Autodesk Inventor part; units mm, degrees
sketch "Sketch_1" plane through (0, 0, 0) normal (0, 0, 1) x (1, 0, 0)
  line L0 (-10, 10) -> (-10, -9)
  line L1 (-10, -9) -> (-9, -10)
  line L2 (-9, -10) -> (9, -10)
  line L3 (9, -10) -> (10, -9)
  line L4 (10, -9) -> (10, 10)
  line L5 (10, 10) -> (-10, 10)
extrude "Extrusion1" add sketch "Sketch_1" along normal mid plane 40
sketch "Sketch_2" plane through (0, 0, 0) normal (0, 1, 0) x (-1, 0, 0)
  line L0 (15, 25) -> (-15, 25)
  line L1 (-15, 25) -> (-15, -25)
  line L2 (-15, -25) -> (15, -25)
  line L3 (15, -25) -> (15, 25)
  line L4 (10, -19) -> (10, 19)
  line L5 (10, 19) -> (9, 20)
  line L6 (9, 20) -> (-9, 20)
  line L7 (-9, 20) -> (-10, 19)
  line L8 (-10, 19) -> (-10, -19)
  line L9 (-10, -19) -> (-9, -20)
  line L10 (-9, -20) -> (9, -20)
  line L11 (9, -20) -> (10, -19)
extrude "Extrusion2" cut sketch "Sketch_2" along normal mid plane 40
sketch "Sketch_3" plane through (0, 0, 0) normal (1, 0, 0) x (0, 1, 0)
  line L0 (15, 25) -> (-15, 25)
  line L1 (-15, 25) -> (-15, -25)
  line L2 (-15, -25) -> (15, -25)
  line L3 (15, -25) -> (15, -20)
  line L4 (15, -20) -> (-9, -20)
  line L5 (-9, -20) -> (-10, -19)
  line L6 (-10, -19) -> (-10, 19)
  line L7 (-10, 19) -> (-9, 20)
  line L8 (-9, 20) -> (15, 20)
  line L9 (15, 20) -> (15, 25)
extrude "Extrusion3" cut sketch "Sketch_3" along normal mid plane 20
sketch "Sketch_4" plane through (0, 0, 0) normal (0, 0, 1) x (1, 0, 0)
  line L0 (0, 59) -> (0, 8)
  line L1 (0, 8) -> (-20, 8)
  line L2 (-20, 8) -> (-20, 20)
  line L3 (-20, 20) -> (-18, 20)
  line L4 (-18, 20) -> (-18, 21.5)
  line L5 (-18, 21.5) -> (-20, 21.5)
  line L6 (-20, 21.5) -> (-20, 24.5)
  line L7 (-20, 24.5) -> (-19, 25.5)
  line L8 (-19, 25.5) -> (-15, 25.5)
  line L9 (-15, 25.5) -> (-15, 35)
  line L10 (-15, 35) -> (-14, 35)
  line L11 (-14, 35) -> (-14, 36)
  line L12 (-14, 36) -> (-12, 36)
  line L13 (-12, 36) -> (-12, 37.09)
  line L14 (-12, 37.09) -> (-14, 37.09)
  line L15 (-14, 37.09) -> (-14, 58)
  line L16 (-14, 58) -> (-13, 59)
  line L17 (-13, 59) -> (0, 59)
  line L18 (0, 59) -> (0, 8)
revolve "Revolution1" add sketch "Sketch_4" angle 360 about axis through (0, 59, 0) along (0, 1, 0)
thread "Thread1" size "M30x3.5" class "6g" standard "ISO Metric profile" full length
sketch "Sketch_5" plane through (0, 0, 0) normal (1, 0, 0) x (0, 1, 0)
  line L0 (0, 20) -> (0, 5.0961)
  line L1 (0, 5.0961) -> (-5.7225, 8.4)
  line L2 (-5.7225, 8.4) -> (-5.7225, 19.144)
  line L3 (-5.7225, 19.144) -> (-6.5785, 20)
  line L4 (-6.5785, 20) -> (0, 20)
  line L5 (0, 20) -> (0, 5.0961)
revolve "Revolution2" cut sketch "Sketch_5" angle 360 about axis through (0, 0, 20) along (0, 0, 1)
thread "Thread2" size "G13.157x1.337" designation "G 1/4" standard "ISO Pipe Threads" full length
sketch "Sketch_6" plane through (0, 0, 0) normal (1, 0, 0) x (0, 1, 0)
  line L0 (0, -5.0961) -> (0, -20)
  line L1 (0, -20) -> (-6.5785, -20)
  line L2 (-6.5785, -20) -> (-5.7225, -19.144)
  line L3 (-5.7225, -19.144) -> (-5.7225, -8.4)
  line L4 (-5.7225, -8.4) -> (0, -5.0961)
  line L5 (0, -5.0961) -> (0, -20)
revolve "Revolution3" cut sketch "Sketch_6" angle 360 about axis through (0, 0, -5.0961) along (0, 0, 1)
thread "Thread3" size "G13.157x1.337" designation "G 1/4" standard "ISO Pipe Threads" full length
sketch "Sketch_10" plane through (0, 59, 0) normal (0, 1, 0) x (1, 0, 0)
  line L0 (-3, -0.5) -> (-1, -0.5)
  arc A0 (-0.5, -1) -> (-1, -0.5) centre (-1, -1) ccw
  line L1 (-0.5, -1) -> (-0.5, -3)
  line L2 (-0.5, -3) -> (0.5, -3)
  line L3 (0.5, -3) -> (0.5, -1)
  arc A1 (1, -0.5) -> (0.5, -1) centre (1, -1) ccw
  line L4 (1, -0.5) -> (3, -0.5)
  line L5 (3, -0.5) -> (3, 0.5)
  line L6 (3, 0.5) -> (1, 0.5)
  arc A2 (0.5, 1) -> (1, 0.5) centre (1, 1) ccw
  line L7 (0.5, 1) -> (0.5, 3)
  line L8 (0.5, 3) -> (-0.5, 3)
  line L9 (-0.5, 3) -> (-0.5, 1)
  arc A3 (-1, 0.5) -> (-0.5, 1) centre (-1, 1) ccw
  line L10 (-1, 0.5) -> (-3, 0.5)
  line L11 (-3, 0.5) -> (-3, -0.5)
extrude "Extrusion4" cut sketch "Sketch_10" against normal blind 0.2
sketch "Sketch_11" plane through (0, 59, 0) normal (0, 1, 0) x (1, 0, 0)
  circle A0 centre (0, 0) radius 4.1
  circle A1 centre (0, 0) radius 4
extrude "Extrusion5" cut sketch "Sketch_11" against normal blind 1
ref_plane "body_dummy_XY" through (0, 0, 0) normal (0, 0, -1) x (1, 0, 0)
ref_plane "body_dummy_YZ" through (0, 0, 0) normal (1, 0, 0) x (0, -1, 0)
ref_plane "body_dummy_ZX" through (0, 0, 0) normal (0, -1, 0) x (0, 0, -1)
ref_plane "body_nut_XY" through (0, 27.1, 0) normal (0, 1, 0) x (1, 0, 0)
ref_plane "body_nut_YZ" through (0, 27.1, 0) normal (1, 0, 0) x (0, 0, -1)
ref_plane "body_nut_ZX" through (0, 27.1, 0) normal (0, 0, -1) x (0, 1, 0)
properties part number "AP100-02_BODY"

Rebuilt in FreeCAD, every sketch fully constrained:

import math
import FreeCAD as App
import Part
import Sketcher
from FreeCAD import Vector
Q = App.Units.Quantity


def add_polygon(sketch, points):
    """Adds a closed chain of lines whose ends are joined by coincident constraints."""
    first, n = sketch.GeometryCount, len(points)
    for a, b in zip(points, points[1:] + points[:1]):
        sketch.addGeometry(Part.LineSegment(App.Vector(*a, 0), App.Vector(*b, 0)), False)
    for i in range(n):
        sketch.addConstraint(Sketcher.Constraint("Coincident", first + i, 2, first + (i + 1) % n, 1))

doc = App.newDocument("Part")
body = doc.addObject("PartDesign::Body", "Body")

# Sketch on XY plane
sketch1 = body.newObject("Sketcher::SketchObject", "Sketch")
sketch1.AttachmentSupport = (doc.getObject("XY_Plane"), [""])
sketch1.MapMode = "FlatFace"
add_polygon(sketch1, [(10, 10), (-10, 10), (-10, -9), (-9, -10), (9, -10), (10, -9)])  # lines 0-5
sketch1.addConstraint([
    Sketcher.Constraint("Horizontal", 0),
    Sketcher.Constraint("Vertical", 1),
    Sketcher.Constraint("Horizontal", 3),
    Sketcher.Constraint("Vertical", 5),
    Sketcher.Constraint("Symmetric", 1, 2, 4, 2, -2),
    Sketcher.Constraint("Perpendicular", 2, 4),
    Sketcher.Constraint("Equal", 2, 4),
    Sketcher.Constraint("DistanceX", 0, 2, 0, 1, Q("20 mm")),
    Sketcher.Constraint("DistanceX", 3, 1, 3, 2, Q("18 mm")),
    Sketcher.Constraint("DistanceY", 1, 2, 1, 1, Q("19 mm")),
    Sketcher.Constraint("DistanceY", -1, 1, 0, 2, Q("10 mm")),
])
pad1 = body.newObject("PartDesign::Pad", "Pad")
pad1.Profile = sketch1
pad1.Length = 40
pad1.Midplane = True

# Sketch on XZ plane
sketch2 = body.newObject("Sketcher::SketchObject", "Sketch001")
sketch2.AttachmentSupport = (doc.getObject("XZ_Plane"), [""])
sketch2.MapMode = "FlatFace"
add_polygon(sketch2, [(-15, -25), (-15, 25), (15, 25), (15, -25)])  # lines 0-3
add_polygon(sketch2, [(-10, 19), (-10, -19), (-9, -20), (9, -20), (10, -19), (10, 19), (9, 20), (-9, 20)])  # lines 4-11
sketch2.addConstraint([
    Sketcher.Constraint("Vertical", 0),
    Sketcher.Constraint("Horizontal", 1),
    Sketcher.Constraint("Vertical", 2),
    Sketcher.Constraint("Horizontal", 3),
    Sketcher.Constraint("Vertical", 4),
    Sketcher.Constraint("Horizontal", 6),
    Sketcher.Constraint("Vertical", 8),
    Sketcher.Constraint("Horizontal", 10),
    Sketcher.Constraint("Symmetric", 0, 2, 2, 2, -1, 1),
    Sketcher.Constraint("Symmetric", 4, 2, 8, 2, -1, 1),
    Sketcher.Constraint("Symmetric", 5, 2, 9, 2, -1, 1),
    Sketcher.Constraint("Perpendicular", 5, 7),
    Sketcher.Constraint("Perpendicular", 9, 11),
    Sketcher.Constraint("Horizontal", 4, 2, 7, 2),
    Sketcher.Constraint("Horizontal", 8, 2, 11, 2),
    Sketcher.Constraint("Vertical", 6, 2, 9, 2),
    Sketcher.Constraint("DistanceX", 1, 1, 1, 2, Q("30 mm")),
    Sketcher.Constraint("DistanceX", 6, 1, 6, 2, Q("18 mm")),
    Sketcher.Constraint("DistanceY", 0, 1, 0, 2, Q("50 mm")),
    Sketcher.Constraint("DistanceY", 4, 2, 4, 1, Q("38 mm")),
    Sketcher.Constraint("DistanceX", 4, 2, -1, 1, Q("10 mm")),
])
pocket1 = body.newObject("PartDesign::Pocket", "Pocket")
pocket1.Profile = sketch2
pocket1.Length = 40
pocket1.Midplane = True

# Sketch on YZ plane
sketch3 = body.newObject("Sketcher::SketchObject", "Sketch002")
sketch3.AttachmentSupport = (doc.getObject("YZ_Plane"), [""])
sketch3.MapMode = "FlatFace"
add_polygon(sketch3, [(15, 20), (15, 25), (-15, 25), (-15, -25), (15, -25), (15, -20), (-9, -20), (-10, -19), (-10, 19), (-9, 20)])  # lines 0-9
sketch3.addConstraint([
    Sketcher.Constraint("Vertical", 0),
    Sketcher.Constraint("Horizontal", 1),
    Sketcher.Constraint("Vertical", 2),
    Sketcher.Constraint("Horizontal", 3),
    Sketcher.Constraint("Vertical", 4),
    Sketcher.Constraint("Horizontal", 5),
    Sketcher.Constraint("Vertical", 7),
    Sketcher.Constraint("Horizontal", 9),
    Sketcher.Constraint("Symmetric", 0, 2, 2, 2, -1, 1),
    Sketcher.Constraint("Symmetric", 5, 2, 8, 2, -1),
    Sketcher.Constraint("Perpendicular", 6, 8),
    Sketcher.Constraint("Vertical", 0, 2, 3, 2),
    Sketcher.Constraint("Equal", 6, 8),
    Sketcher.Constraint("DistanceX", 1, 2, 1, 1, Q("30 mm")),
    Sketcher.Constraint("DistanceX", 5, 2, 5, 1, Q("24 mm")),
    Sketcher.Constraint("DistanceY", 0, 1, 0, 2, Q("5 mm")),
    Sketcher.Constraint("DistanceY", 2, 2, 2, 1, Q("50 mm")),
    Sketcher.Constraint("DistanceY", 7, 1, 7, 2, Q("38 mm")),
])
pocket2 = body.newObject("PartDesign::Pocket", "Pocket001")
pocket2.Profile = sketch3
pocket2.Length = 20
pocket2.Midplane = True

# Sketch on XY plane
sketch4 = body.newObject("Sketcher::SketchObject", "Sketch003")
sketch4.AttachmentSupport = (doc.getObject("XY_Plane"), [""])
sketch4.MapMode = "FlatFace"
add_polygon(sketch4, [(0, 8), (0, 59), (-13, 59), (-14, 58), (-14, 37.1), (-12, 37.1), (-12, 36), (-14, 36), (-14, 35), (-15, 35), (-15, 25.5), (-19, 25.5), (-20, 24.5), (-20, 21.5), (-18, 21.5), (-18, 20), (-20, 20), (-20, 8)])  # lines 0-17
sketch4.addConstraint([
    Sketcher.Constraint("Vertical", 0),
    Sketcher.Constraint("Horizontal", 1),
    Sketcher.Constraint("Vertical", 3),
    Sketcher.Constraint("Horizontal", 4),
    Sketcher.Constraint("Vertical", 5),
    Sketcher.Constraint("Horizontal", 6),
    Sketcher.Constraint("Vertical", 7),
    Sketcher.Constraint("Horizontal", 8),
    Sketcher.Constraint("Vertical", 9),
    Sketcher.Constraint("Horizontal", 10),
    Sketcher.Constraint("Vertical", 12),
    Sketcher.Constraint("Horizontal", 13),
    Sketcher.Constraint("Vertical", 14),
    Sketcher.Constraint("Horizontal", 15),
    Sketcher.Constraint("Vertical", 16),
    Sketcher.Constraint("Horizontal", 17),
    Sketcher.Constraint("PointOnObject", 0, 2, -2),
    Sketcher.Constraint("Parallel", 2, 11),
    Sketcher.Constraint("Vertical", 3, 2, 6, 2),
    Sketcher.Constraint("Vertical", 12, 2, 15, 2),
    Sketcher.Constraint("Equal", 6, 13),
    Sketcher.Constraint("Equal", 8, 7),
    Sketcher.Constraint("Equal", 2, 11),
    Sketcher.Constraint("DistanceX", 1, 2, 1, 1, Q("13 mm")),
    Sketcher.Constraint("DistanceX", 4, 1, 4, 2, Q("2 mm")),
    Sketcher.Constraint("DistanceX", 8, 2, 8, 1, Q("1 mm")),
    Sketcher.Constraint("DistanceX", 10, 2, 10, 1, Q("4 mm")),
    Sketcher.Constraint("DistanceX", 17, 1, 17, 2, Q("20 mm")),
    Sketcher.Constraint("DistanceY", 0, 1, 0, 2, Q("51 mm")),
    Sketcher.Constraint("DistanceY", 12, 2, 12, 1, Q("3 mm")),
    Sketcher.Constraint("DistanceY", 16, 2, 16, 1, Q("12 mm")),
    Sketcher.Constraint("Angle", 2, Q("-135 deg")),
    Sketcher.Constraint("DistanceY", 9, 2, 9, 1, Q("9.5 mm")),
    Sketcher.Constraint("DistanceY", 14, 2, 14, 1, Q("1.5 mm")),
    Sketcher.Constraint("DistanceY", -1, 1, 0, 2, Q("59 mm")),
    Sketcher.Constraint("DistanceY", 3, 2, 3, 1, Q("20.91 mm")),
])
revolution = body.newObject("PartDesign::Revolution", "Revolution")
revolution.Profile = sketch4
revolution.ReferenceAxis = (sketch4, ["V_Axis"])
revolution.Angle = 360

# Sketch on YZ plane
sketch5 = body.newObject("Sketcher::SketchObject", "Sketch004")
sketch5.AttachmentSupport = (doc.getObject("YZ_Plane"), [""])
sketch5.MapMode = "FlatFace"
add_polygon(sketch5, [(0, 5.1), (0, 20), (-6.6, 20), (-5.7, 19.1), (-5.7, 8.4)])  # lines 0-4
sketch5.addConstraint([
    Sketcher.Constraint("Vertical", 0),
    Sketcher.Constraint("Horizontal", 1),
    Sketcher.Constraint("Vertical", 3),
    Sketcher.Constraint("PointOnObject", 0, 2, -2),
    Sketcher.Constraint("Angle", 2, Q("-45 deg")),
    Sketcher.Constraint("Angle", 4, Q("-30 deg")),
    Sketcher.Constraint("DistanceY", -1, 1, 0, 2, Q("20 mm")),
    Sketcher.Constraint("DistanceY", -1, 1, 3, 2, Q("8.4 mm")),
    Sketcher.Constraint("DistanceY", 0, 1, 0, 2, Q("14.904 mm")),
    Sketcher.Constraint("DistanceY", 3, 2, 3, 1, Q("10.744 mm")),
])
groove = body.newObject("PartDesign::Groove", "Groove")
groove.Profile = sketch5
groove.ReferenceAxis = (sketch5, ["V_Axis"])
groove.Angle = 360

# Sketch on YZ plane
sketch6 = body.newObject("Sketcher::SketchObject", "Sketch005")
sketch6.AttachmentSupport = (doc.getObject("YZ_Plane"), [""])
sketch6.MapMode = "FlatFace"
add_polygon(sketch6, [(0, -20), (0, -5.1), (-5.7, -8.4), (-5.7, -19.1), (-6.6, -20)])  # lines 0-4
sketch6.addConstraint([
    Sketcher.Constraint("Vertical", 0),
    Sketcher.Constraint("Vertical", 2),
    Sketcher.Constraint("Horizontal", 4),
    Sketcher.Constraint("PointOnObject", 0, 2, -2),
    Sketcher.Constraint("Angle", 1, Q("-150 deg")),
    Sketcher.Constraint("Angle", 3, Q("-135 deg")),
    Sketcher.Constraint("DistanceY", 3, 2, -1, 1, Q("20 mm")),
    Sketcher.Constraint("DistanceY", 1, 2, -1, 1, Q("8.4 mm")),
    Sketcher.Constraint("DistanceY", 0, 1, 0, 2, Q("14.904 mm")),
    Sketcher.Constraint("DistanceY", 2, 2, 2, 1, Q("10.744 mm")),
])
groove2 = body.newObject("PartDesign::Groove", "Groove001")
groove2.Profile = sketch6
groove2.ReferenceAxis = (sketch6, ["V_Axis"])
groove2.Angle = 360

# Sketch on XZ plane
sketch7 = body.newObject("Sketcher::SketchObject", "Sketch006")
sketch7.AttachmentSupport = (doc.getObject("XZ_Plane"), [""])
sketch7.MapMode = "FlatFace"
sketch7.AttachmentOffset = App.Placement(Vector(0, 0, -59), App.Rotation())
sketch7.addGeometry([
    Part.LineSegment(Vector(-3, -0.5, 0), Vector(-3, 0.5, 0)),  # 0
    Part.LineSegment(Vector(-3, 0.5, 0), Vector(-1, 0.5, 0)),  # 1
    Part.ArcOfCircle(Part.Circle(Vector(-1, 1, 0), Vector(0, 0, 1), 0.5), math.radians(-90), math.radians(0)),  # 2
    Part.LineSegment(Vector(-0.5, 1, 0), Vector(-0.5, 3, 0)),  # 3
    Part.LineSegment(Vector(-0.5, 3, 0), Vector(0.5, 3, 0)),  # 4
    Part.LineSegment(Vector(0.5, 3, 0), Vector(0.5, 1, 0)),  # 5
    Part.ArcOfCircle(Part.Circle(Vector(1, 1, 0), Vector(0, 0, 1), 0.5), math.radians(180), math.radians(270)),  # 6
    Part.LineSegment(Vector(1, 0.5, 0), Vector(3, 0.5, 0)),  # 7
    Part.LineSegment(Vector(3, 0.5, 0), Vector(3, -0.5, 0)),  # 8
    Part.LineSegment(Vector(3, -0.5, 0), Vector(1, -0.5, 0)),  # 9
    Part.ArcOfCircle(Part.Circle(Vector(1, -1, 0), Vector(0, 0, 1), 0.5), math.radians(90), math.radians(180)),  # 10
    Part.LineSegment(Vector(0.5, -1, 0), Vector(0.5, -3, 0)),  # 11
    Part.LineSegment(Vector(0.5, -3, 0), Vector(-0.5, -3, 0)),  # 12
    Part.LineSegment(Vector(-0.5, -3, 0), Vector(-0.5, -1, 0)),  # 13
    Part.ArcOfCircle(Part.Circle(Vector(-1, -1, 0), Vector(0, 0, 1), 0.5), math.radians(0), math.radians(90)),  # 14
    Part.LineSegment(Vector(-1, -0.5, 0), Vector(-3, -0.5, 0)),  # 15
], False)
sketch7.addConstraint([
    Sketcher.Constraint("Coincident", 0, 2, 1, 1),
    Sketcher.Constraint("Tangent", 1, 2, 2, 1),
    Sketcher.Constraint("Tangent", 2, 2, 3, 1),
    Sketcher.Constraint("Coincident", 3, 2, 4, 1),
    Sketcher.Constraint("Coincident", 4, 2, 5, 1),
    Sketcher.Constraint("Tangent", 5, 2, 6, 1),
    Sketcher.Constraint("Tangent", 6, 2, 7, 1),
    Sketcher.Constraint("Coincident", 7, 2, 8, 1),
    Sketcher.Constraint("Coincident", 8, 2, 9, 1),
    Sketcher.Constraint("Tangent", 9, 2, 10, 1),
    Sketcher.Constraint("Tangent", 10, 2, 11, 1),
    Sketcher.Constraint("Coincident", 11, 2, 12, 1),
    Sketcher.Constraint("Coincident", 12, 2, 13, 1),
    Sketcher.Constraint("Tangent", 13, 2, 14, 1),
    Sketcher.Constraint("Tangent", 14, 2, 15, 1),
    Sketcher.Constraint("Coincident", 15, 2, 0, 1),
    Sketcher.Constraint("Vertical", 0),
    Sketcher.Constraint("Horizontal", 1),
    Sketcher.Constraint("Vertical", 3),
    Sketcher.Constraint("Horizontal", 4),
    Sketcher.Constraint("Vertical", 5),
    Sketcher.Constraint("Horizontal", 7),
    Sketcher.Constraint("Vertical", 8),
    Sketcher.Constraint("Horizontal", 9),
    Sketcher.Constraint("Vertical", 11),
    Sketcher.Constraint("Horizontal", 12),
    Sketcher.Constraint("Vertical", 13),
    Sketcher.Constraint("Horizontal", 15),
    Sketcher.Constraint("Equal", 2, 6),
    Sketcher.Constraint("Equal", 6, 10),
    Sketcher.Constraint("Equal", 10, 14),
    Sketcher.Constraint("Symmetric", 2, 3, 10, 3, -1, 1),
    Sketcher.Constraint("Symmetric", 6, 3, 14, 3, -1, 1),
    Sketcher.Constraint("Symmetric", 2, 3, 6, 3, -2),
    Sketcher.Constraint("Equal", 1, 7),
    Sketcher.Constraint("Equal", 12, 0),
    Sketcher.Constraint("Equal", 15, 3),
    Sketcher.Constraint("Equal", 5, 11),
    Sketcher.Constraint("Radius", 2, Q("0.5 mm")),
    Sketcher.Constraint("DistanceX", 1, 1, 1, 2, Q("2 mm")),
    Sketcher.Constraint("DistanceX", 4, 1, 4, 2, Q("1 mm")),
])
pocket3 = body.newObject("PartDesign::Pocket", "Pocket002")
pocket3.Profile = sketch7
pocket3.Length = 0.2
pocket3.Reversed = True

# Sketch on XZ plane
sketch8 = body.newObject("Sketcher::SketchObject", "Sketch007")
sketch8.AttachmentSupport = (doc.getObject("XZ_Plane"), [""])
sketch8.MapMode = "FlatFace"
sketch8.AttachmentOffset = App.Placement(Vector(0, 0, -59), App.Rotation())
sketch8.addGeometry([
    Part.Circle(Vector(0, 0, 0), Vector(0, 0, 1), 4.1),
    Part.Circle(Vector(0, 0, 0), Vector(0, 0, 1), 4),
], False)
sketch8.addConstraint([
    Sketcher.Constraint("Coincident", 0, 3, -1, 1),
    Sketcher.Constraint("Coincident", 1, 3, -1, 1),
    Sketcher.Constraint("Diameter", 1, Q("8 mm")),
    Sketcher.Constraint("Diameter", 0, Q("8.2 mm")),
])
pocket4 = body.newObject("PartDesign::Pocket", "Pocket003")
pocket4.Profile = sketch8
pocket4.Length = 1
pocket4.Reversed = True

doc.recompute()
